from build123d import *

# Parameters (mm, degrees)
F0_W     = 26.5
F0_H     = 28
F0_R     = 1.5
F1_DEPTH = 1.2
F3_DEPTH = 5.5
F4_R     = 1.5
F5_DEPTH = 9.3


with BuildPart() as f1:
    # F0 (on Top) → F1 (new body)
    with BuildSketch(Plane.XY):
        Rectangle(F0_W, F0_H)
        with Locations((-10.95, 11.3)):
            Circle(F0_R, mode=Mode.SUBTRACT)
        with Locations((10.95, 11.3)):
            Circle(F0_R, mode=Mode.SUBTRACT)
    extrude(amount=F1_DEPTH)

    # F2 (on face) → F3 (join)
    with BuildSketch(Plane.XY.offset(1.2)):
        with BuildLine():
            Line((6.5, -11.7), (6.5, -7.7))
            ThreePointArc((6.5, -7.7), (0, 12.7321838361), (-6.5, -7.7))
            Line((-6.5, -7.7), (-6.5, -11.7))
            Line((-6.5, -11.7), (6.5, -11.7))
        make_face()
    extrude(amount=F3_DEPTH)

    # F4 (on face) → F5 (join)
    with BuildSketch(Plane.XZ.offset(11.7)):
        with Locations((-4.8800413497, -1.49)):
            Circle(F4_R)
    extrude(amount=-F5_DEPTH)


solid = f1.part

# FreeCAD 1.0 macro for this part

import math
import FreeCAD as App
import Part
import Sketcher


def add_polygon(sketch, points):
    """Adds a closed chain of lines whose ends are joined by coincident constraints."""
    first, n = sketch.GeometryCount, len(points)
    for a, b in zip(points, points[1:] + points[:1]):
        sketch.addGeometry(Part.LineSegment(App.Vector(*a, 0), App.Vector(*b, 0)), False)
    for i in range(n):
        sketch.addConstraint(Sketcher.Constraint("Coincident", first + i, 2, first + (i + 1) % n, 1))

doc = App.newDocument("Part")
body = doc.addObject("PartDesign::Body", "Body")

sketch1 = doc.addObject("Sketcher::SketchObject", "Sketch")
body.addObject(sketch1)
sketch1.AttachmentSupport = (doc.XY_Plane, [""])
sketch1.MapMode = "FlatFace"
add_polygon(sketch1, [(-13.25, 14), (-13.25, -14), (13.25, -14), (13.25, 14)])
sketch1.addGeometry(Part.Circle(App.Vector(-10.95, 11.3, 0), App.Vector(0, 0, 1), 1.5), False)
sketch1.addGeometry(Part.Circle(App.Vector(10.95, 11.3, 0), App.Vector(0, 0, 1), 1.5), False)
sketch1.addConstraint(Sketcher.Constraint("Vertical", 0))
sketch1.addConstraint(Sketcher.Constraint("Horizontal", 1))
sketch1.addConstraint(Sketcher.Constraint("Vertical", 2))
sketch1.addConstraint(Sketcher.Constraint("Horizontal", 3))
sketch1.addConstraint(Sketcher.Constraint("Equal", 4, 5))
sketch1.addConstraint(Sketcher.Constraint("Symmetric", 0, 2, 2, 2, -1, 1))
sketch1.addConstraint(Sketcher.Constraint("Symmetric", 4, 3, 5, 3, -2))
sketch1.addConstraint(Sketcher.Constraint("Diameter", 4, 3.0))
sketch1.addConstraint(Sketcher.Constraint("DistanceY", 0, 2, 0, 1, 28.0))
sketch1.addConstraint(Sketcher.Constraint("DistanceX", 1, 1, 1, 2, 26.5))
sketch1.addConstraint(Sketcher.Constraint("DistanceY", -1, 1, 4, 3, 11.3))
sketch1.addConstraint(Sketcher.Constraint("DistanceX", 4, 3, 5, 3, 21.9))
pad1 = doc.addObject("PartDesign::Pad", "Pad")
body.addObject(pad1)
pad1.Profile = sketch1
pad1.Length = 1.2

sketch2 = doc.addObject("Sketcher::SketchObject", "Sketch001")
body.addObject(sketch2)
sketch2.AttachmentSupport = (doc.XY_Plane, [""])
sketch2.MapMode = "FlatFace"
sketch2.AttachmentOffset = App.Placement(App.Vector(0, 0, 1.2), App.Rotation())
sketch2.addGeometry(Part.LineSegment(App.Vector(6.5, -11.7, 0), App.Vector(6.5, -7.7, 0)), False)
sketch2.addGeometry(Part.ArcOfCircle(Part.Circle(App.Vector(0, 1.482184, 0), App.Vector(0, 0, 1), 11.25), math.radians(-54.705605), math.radians(234.705605)), False)
sketch2.addGeometry(Part.LineSegment(App.Vector(-6.5, -7.7, 0), App.Vector(-6.5, -11.7, 0)), False)
sketch2.addGeometry(Part.LineSegment(App.Vector(-6.5, -11.7, 0), App.Vector(6.5, -11.7, 0)), False)
sketch2.addConstraint(Sketcher.Constraint("Coincident", 0, 2, 1, 1))
sketch2.addConstraint(Sketcher.Constraint("Coincident", 1, 2, 2, 1))
sketch2.addConstraint(Sketcher.Constraint("Coincident", 2, 2, 3, 1))
sketch2.addConstraint(Sketcher.Constraint("Coincident", 3, 2, 0, 1))
sketch2.addConstraint(Sketcher.Constraint("Vertical", 0))
sketch2.addConstraint(Sketcher.Constraint("Vertical", 2))
sketch2.addConstraint(Sketcher.Constraint("Horizontal", 3))
sketch2.addConstraint(Sketcher.Constraint("Symmetric", 0, 2, 1, 2, -2))
sketch2.addConstraint(Sketcher.Constraint("DistanceX", 3, 1, 3, 2, 13.0))
sketch2.addConstraint(Sketcher.Constraint("DistanceY", 0, 1, 0, 2, 4.0))
sketch2.addConstraint(Sketcher.Constraint("Radius", 1, 11.25))
sketch2.addConstraint(Sketcher.Constraint("DistanceY", 0, 2, -1, 1, 7.7))
pad2 = doc.addObject("PartDesign::Pad", "Pad001")
body.addObject(pad2)
pad2.Profile = sketch2
pad2.Length = 5.5

sketch3 = doc.addObject("Sketcher::SketchObject", "Sketch002")
body.addObject(sketch3)
sketch3.AttachmentSupport = (doc.XZ_Plane, [""])
sketch3.MapMode = "FlatFace"
sketch3.AttachmentOffset = App.Placement(App.Vector(0, 0, 11.7), App.Rotation())
sketch3.addGeometry(Part.Circle(App.Vector(-4.880041, -1.49, 0), App.Vector(0, 0, 1), 1.5), False)
sketch3.addConstraint(Sketcher.Constraint("Diameter", 0, 3.0))
sketch3.addConstraint(Sketcher.Constraint("DistanceY", 0, 3, -1, 1, 1.49))
sketch3.addConstraint(Sketcher.Constraint("DistanceX", 0, 3, -1, 1, 4.880041))
pad3 = doc.addObject("PartDesign::Pad", "Pad002")
body.addObject(pad3)
pad3.Profile = sketch3
pad3.Length = 9.3
pad3.Reversed = True

doc.recompute()
